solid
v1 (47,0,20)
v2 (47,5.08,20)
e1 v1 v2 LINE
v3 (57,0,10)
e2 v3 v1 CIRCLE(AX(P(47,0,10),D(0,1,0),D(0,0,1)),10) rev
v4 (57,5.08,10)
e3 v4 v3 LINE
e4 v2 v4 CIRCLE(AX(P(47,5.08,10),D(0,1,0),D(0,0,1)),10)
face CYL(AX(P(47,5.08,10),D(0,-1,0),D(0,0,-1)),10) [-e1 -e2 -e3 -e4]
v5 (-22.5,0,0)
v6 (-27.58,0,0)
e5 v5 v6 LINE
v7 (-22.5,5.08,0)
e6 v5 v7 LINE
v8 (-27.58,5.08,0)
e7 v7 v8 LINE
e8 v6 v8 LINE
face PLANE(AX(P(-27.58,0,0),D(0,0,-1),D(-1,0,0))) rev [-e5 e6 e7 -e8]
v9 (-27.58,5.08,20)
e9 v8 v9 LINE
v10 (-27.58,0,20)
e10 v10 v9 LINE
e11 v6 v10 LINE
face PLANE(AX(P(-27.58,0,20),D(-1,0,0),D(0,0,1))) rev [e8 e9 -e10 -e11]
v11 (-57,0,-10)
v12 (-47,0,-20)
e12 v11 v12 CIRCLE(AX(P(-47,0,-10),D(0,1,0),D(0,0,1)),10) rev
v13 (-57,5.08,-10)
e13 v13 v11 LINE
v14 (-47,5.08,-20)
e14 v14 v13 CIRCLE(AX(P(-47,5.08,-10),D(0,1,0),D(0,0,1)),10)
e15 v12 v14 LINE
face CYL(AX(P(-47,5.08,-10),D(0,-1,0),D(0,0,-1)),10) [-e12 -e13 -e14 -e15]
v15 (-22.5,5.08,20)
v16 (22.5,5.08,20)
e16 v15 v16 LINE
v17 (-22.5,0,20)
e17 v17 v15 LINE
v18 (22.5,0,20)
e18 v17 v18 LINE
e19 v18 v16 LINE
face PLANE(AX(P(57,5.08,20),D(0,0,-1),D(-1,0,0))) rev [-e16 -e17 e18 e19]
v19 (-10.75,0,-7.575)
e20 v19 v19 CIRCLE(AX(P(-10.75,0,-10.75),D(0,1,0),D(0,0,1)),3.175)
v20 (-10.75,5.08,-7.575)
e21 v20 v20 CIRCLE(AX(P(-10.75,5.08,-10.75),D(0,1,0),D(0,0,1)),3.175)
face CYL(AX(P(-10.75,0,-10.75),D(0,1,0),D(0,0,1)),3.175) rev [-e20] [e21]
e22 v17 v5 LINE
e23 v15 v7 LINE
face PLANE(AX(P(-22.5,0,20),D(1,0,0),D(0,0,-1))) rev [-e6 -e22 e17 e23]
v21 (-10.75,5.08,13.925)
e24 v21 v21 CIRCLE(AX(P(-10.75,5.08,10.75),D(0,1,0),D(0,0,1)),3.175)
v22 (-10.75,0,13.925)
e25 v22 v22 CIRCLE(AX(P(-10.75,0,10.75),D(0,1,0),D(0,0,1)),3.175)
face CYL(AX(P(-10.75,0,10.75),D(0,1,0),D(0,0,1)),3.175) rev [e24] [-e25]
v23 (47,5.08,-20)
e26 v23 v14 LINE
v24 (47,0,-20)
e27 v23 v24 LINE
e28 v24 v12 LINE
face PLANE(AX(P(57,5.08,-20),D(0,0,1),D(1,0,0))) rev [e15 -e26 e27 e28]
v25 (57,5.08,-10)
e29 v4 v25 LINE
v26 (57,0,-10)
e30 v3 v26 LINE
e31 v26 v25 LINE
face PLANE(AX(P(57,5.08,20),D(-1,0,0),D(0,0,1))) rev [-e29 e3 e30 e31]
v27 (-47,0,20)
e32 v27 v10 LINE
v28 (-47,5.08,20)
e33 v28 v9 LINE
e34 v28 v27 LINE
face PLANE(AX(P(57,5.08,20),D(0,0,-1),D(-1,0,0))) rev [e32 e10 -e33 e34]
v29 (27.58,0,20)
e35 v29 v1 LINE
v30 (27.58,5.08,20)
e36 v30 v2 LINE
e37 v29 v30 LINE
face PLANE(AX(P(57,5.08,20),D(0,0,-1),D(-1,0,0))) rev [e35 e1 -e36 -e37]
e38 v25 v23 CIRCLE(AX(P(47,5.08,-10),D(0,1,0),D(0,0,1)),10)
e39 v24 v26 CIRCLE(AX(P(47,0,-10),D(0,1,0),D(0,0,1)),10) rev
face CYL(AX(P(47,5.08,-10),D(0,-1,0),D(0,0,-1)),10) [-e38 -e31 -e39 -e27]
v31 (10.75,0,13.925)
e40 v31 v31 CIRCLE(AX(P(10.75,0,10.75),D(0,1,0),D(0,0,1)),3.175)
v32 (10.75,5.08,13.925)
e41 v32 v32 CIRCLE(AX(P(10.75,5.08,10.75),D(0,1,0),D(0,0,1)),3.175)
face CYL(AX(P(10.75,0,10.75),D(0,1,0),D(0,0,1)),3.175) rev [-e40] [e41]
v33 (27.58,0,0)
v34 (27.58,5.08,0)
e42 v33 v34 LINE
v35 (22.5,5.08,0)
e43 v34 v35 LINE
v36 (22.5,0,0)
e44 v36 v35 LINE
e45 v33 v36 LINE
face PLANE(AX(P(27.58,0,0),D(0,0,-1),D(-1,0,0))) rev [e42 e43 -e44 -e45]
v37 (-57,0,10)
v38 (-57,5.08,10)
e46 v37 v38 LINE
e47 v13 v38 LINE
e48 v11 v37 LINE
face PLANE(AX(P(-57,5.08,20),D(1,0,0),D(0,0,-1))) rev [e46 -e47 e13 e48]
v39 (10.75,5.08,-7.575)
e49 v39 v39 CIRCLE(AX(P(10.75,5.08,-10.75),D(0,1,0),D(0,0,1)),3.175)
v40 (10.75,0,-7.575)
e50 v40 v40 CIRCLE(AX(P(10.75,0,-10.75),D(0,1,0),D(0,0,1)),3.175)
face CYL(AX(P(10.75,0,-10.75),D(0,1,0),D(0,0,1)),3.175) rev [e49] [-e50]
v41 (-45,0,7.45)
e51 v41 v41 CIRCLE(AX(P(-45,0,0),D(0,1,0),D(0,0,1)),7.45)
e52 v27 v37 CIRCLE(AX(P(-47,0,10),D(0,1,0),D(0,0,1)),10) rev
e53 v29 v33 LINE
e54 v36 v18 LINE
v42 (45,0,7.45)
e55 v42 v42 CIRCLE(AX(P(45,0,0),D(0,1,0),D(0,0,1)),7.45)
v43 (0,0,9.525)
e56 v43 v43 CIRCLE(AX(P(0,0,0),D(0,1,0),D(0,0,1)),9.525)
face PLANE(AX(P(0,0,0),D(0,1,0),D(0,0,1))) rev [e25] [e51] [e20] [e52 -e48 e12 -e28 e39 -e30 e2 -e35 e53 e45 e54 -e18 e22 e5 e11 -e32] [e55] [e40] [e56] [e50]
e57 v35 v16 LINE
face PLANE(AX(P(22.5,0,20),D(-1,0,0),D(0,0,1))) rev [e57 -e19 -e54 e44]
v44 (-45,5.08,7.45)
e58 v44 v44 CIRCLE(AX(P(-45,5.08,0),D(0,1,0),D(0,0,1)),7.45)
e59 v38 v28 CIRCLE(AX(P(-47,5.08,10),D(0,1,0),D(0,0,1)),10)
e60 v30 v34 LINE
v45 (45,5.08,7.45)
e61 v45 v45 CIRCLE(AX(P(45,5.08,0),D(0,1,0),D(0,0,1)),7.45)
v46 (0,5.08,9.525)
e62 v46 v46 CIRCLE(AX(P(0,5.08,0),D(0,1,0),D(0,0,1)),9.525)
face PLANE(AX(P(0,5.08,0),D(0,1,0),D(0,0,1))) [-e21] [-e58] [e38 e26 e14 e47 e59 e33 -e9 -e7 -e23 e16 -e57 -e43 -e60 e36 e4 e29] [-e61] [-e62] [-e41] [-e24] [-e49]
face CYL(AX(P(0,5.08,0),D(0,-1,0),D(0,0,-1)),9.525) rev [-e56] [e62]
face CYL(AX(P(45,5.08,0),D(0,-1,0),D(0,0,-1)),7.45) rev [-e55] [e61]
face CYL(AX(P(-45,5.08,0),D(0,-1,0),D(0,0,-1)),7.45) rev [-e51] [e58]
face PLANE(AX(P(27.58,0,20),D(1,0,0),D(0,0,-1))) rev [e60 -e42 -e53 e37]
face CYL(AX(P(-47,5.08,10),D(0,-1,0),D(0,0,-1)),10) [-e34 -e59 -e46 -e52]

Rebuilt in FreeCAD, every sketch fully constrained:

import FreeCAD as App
import Part
import Sketcher


def edges_at(feature, points):
    """Names of the edges that pass closest to the given points."""
    edges = feature.Shape.Edges
    near = lambda p: min(range(len(edges)), key=lambda i: edges[i].distToShape(Part.Vertex(*p))[0])
    return sorted({f"Edge{near(p) + 1}" for p in points})

doc = App.newDocument("Part")
body = doc.addObject("PartDesign::Body", "Body")

# Sketch on XZ plane
sketch1 = doc.addObject("Sketcher::SketchObject", "Sketch")
body.addObject(sketch1)
sketch1.AttachmentSupport = (doc.XZ_Plane, [""])
sketch1.MapMode = "FlatFace"
sketch1.addGeometry([
    Part.LineSegment(App.Vector(-57, -20, 0), App.Vector(-57, 20, 0)),  # 0
    Part.LineSegment(App.Vector(-57, 20, 0), App.Vector(57, 20, 0)),  # 1
    Part.LineSegment(App.Vector(57, 20, 0), App.Vector(57, -20, 0)),  # 2
    Part.LineSegment(App.Vector(57, -20, 0), App.Vector(-57, -20, 0)),  # 3
    Part.Circle(App.Vector(-45, 0, 0), App.Vector(0, 0, 1), 7),  # 4
    Part.Circle(App.Vector(0, 0, 0), App.Vector(0, 0, 1), 10),  # 5
    Part.Circle(App.Vector(45, 0, 0), App.Vector(0, 0, 1), 7),  # 6
], False)
sketch1.addConstraint([
    Sketcher.Constraint("Coincident", 0, 2, 1, 1),
    Sketcher.Constraint("Coincident", 1, 2, 2, 1),
    Sketcher.Constraint("Coincident", 2, 2, 3, 1),
    Sketcher.Constraint("Coincident", 3, 2, 0, 1),
    Sketcher.Constraint("Vertical", 0),
    Sketcher.Constraint("Horizontal", 1),
    Sketcher.Constraint("Vertical", 2),
    Sketcher.Constraint("Horizontal", 3),
    Sketcher.Constraint("Coincident", 5, 3, -1, 1),
    Sketcher.Constraint("Equal", 4, 6),
    Sketcher.Constraint("Symmetric", 4, 3, 6, 3, -1, 1),
    Sketcher.Constraint("Symmetric", 0, 2, 2, 2, -1, 1),
    Sketcher.Constraint("PointOnObject", 4, 3, -1),
    Sketcher.Constraint("Diameter", 4, 14.9),
    Sketcher.Constraint("Diameter", 5, 19.05),
    Sketcher.Constraint("DistanceX", 1, 1, 1, 2, 114.0),
    Sketcher.Constraint("DistanceY", 0, 1, 0, 2, 40.0),
    Sketcher.Constraint("DistanceX", 4, 3, -1, 1, 45.0),
])
pad1 = doc.addObject("PartDesign::Pad", "Pad")
body.addObject(pad1)
pad1.Profile = sketch1
pad1.Length = 5.08
pad1.Reversed = True
doc.recompute()

fillet = doc.addObject("PartDesign::Fillet", "Fillet")
body.addObject(fillet)
fillet.Base = (pad1, edges_at(pad1, [
    (-57, 2.54, -20),
    (57, 2.54, -20),
    (57, 2.54, 20),
    (-57, 2.54, 20),
]))
fillet.Radius = 10

# Sketch on XZ plane
sketch2 = doc.addObject("Sketcher::SketchObject", "Sketch001")
body.addObject(sketch2)
sketch2.AttachmentSupport = (doc.XZ_Plane, [""])
sketch2.MapMode = "FlatFace"
sketch2.AttachmentOffset = App.Placement(App.Vector(0, 0, -5.08), App.Rotation())
sketch2.addGeometry([
    Part.Circle(App.Vector(10.8, 10.8, 0), App.Vector(0, 0, 1), 3.2),  # 0
    Part.Circle(App.Vector(-10.8, 10.8, 0), App.Vector(0, 0, 1), 3.2),  # 1
    Part.Circle(App.Vector(-10.8, -10.8, 0), App.Vector(0, 0, 1), 3.2),  # 2
    Part.Circle(App.Vector(10.8, -10.8, 0), App.Vector(0, 0, 1), 3.2),  # 3
    Part.LineSegment(App.Vector(-27.6, 0, 0), App.Vector(-27.6, 20, 0)),  # 4
    Part.LineSegment(App.Vector(-27.6, 20, 0), App.Vector(-22.5, 20, 0)),  # 5
    Part.LineSegment(App.Vector(-22.5, 20, 0), App.Vector(-22.5, 0, 0)),  # 6
    Part.LineSegment(App.Vector(-22.5, 0, 0), App.Vector(-27.6, 0, 0)),  # 7
    Part.LineSegment(App.Vector(22.5, 0, 0), App.Vector(22.5, 20, 0)),  # 8
    Part.LineSegment(App.Vector(22.5, 20, 0), App.Vector(27.6, 20, 0)),  # 9
    Part.LineSegment(App.Vector(27.6, 20, 0), App.Vector(27.6, 0, 0)),  # 10
    Part.LineSegment(App.Vector(27.6, 0, 0), App.Vector(22.5, 0, 0)),  # 11
], False)
sketch2.addConstraint([
    Sketcher.Constraint("Coincident", 4, 2, 5, 1),
    Sketcher.Constraint("Coincident", 5, 2, 6, 1),
    Sketcher.Constraint("Coincident", 6, 2, 7, 1),
    Sketcher.Constraint("Coincident", 7, 2, 4, 1),
    Sketcher.Constraint("Coincident", 8, 2, 9, 1),
    Sketcher.Constraint("Coincident", 9, 2, 10, 1),
    Sketcher.Constraint("Coincident", 10, 2, 11, 1),
    Sketcher.Constraint("Coincident", 11, 2, 8, 1),
    Sketcher.Constraint("Vertical", 4),
    Sketcher.Constraint("Horizontal", 5),
    Sketcher.Constraint("Vertical", 6),
    Sketcher.Constraint("Horizontal", 7),
    Sketcher.Constraint("Vertical", 8),
    Sketcher.Constraint("Horizontal", 9),
    Sketcher.Constraint("Vertical", 10),
    Sketcher.Constraint("Horizontal", 11),
    Sketcher.Constraint("Equal", 0, 1),
    Sketcher.Constraint("Equal", 1, 2),
    Sketcher.Constraint("Equal", 2, 3),
    Sketcher.Constraint("Symmetric", 0, 3, 2, 3, -1, 1),
    Sketcher.Constraint("Symmetric", 1, 3, 3, 3, -1, 1),
    Sketcher.Constraint("Symmetric", 7, 2, 10, 2, -1, 1),
    Sketcher.Constraint("Symmetric", 0, 3, 1, 3, -2),
    Sketcher.Constraint("Symmetric", 5, 2, 8, 2, -2),
    Sketcher.Constraint("PointOnObject", 6, 2, -1),
    Sketcher.Constraint("Diameter", 0, 6.35),
    Sketcher.Constraint("DistanceY", 4, 1, 4, 2, 20.0),
    Sketcher.Constraint("DistanceX", 5, 2, 8, 2, 45.0),
    Sketcher.Constraint("DistanceX", 5, 1, 5, 2, 5.08),
    Sketcher.Constraint("DistanceX", 1, 3, 0, 3, 21.5),
    Sketcher.Constraint("DistanceY", 2, 3, 1, 3, 21.5),
])
pocket1 = doc.addObject("PartDesign::Pocket", "Pocket")
body.addObject(pocket1)
pocket1.Profile = sketch2
pocket1.Type = "ThroughAll"
pocket1.Reversed = True

doc.recompute()
